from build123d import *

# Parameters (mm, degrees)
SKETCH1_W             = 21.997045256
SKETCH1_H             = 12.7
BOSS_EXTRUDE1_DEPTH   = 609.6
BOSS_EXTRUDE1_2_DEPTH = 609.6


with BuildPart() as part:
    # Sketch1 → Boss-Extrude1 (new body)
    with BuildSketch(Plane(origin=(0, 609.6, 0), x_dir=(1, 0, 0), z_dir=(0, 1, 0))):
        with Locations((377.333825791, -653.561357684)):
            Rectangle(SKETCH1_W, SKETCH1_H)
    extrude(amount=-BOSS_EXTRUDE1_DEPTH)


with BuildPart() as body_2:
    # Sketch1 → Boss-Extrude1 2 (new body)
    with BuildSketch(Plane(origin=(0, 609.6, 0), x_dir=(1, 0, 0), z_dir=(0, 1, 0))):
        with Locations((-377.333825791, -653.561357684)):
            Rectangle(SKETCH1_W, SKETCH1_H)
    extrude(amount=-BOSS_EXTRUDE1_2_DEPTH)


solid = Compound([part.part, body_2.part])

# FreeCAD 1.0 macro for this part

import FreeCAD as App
import Part
import Sketcher
Q = App.Units.Quantity


def add_polygon(sketch, points):
    """Adds a closed chain of lines whose ends are joined by coincident constraints."""
    first, n = sketch.GeometryCount, len(points)
    for a, b in zip(points, points[1:] + points[:1]):
        sketch.addGeometry(Part.LineSegment(App.Vector(*a, 0), App.Vector(*b, 0)), False)
    for i in range(n):
        sketch.addConstraint(Sketcher.Constraint("Coincident", first + i, 2, first + (i + 1) % n, 1))

doc = App.newDocument("Part")
body = doc.addObject("PartDesign::Body", "Body")

# Sketch on XZ plane
sketch1 = body.newObject("Sketcher::SketchObject", "Sketch")
sketch1.AttachmentSupport = (doc.getObject("XZ_Plane"), [""])
sketch1.MapMode = "FlatFace"
sketch1.AttachmentOffset = App.Placement(App.Vector(0, 0, -24 * 25.4), App.Rotation())
add_polygon(sketch1, [(366.335303, 647.211358), (366.335303, 659.911358), (388.332348, 659.911358), (388.332348, 647.211358)])  # lines 0-3
sketch1.addConstraint([
    Sketcher.Constraint("Vertical", 0),
    Sketcher.Constraint("Horizontal", 1),
    Sketcher.Constraint("Vertical", 2),
    Sketcher.Constraint("Horizontal", 3),
    Sketcher.Constraint("DistanceY", 0, 1, 0, 2, Q("0.5 in")),
    Sketcher.Constraint("DistanceX", 1, 1, 1, 2, Q("21.997045 mm")),
    Sketcher.Constraint("DistanceX", -1, 1, 1, 2, Q("388.332348 mm")),
    Sketcher.Constraint("DistanceY", -1, 1, 0, 2, Q("659.911358 mm")),
])
pad1 = body.newObject("PartDesign::Pad", "Pad")
pad1.Profile = sketch1
pad1.Length = Q("24 in")
body2 = doc.addObject("PartDesign::Body", "Body001")

# Sketch on XZ plane
sketch2 = body2.newObject("Sketcher::SketchObject", "Sketch001")
sketch2.AttachmentSupport = (doc.getObject("XZ_Plane001"), [""])
sketch2.MapMode = "FlatFace"
sketch2.AttachmentOffset = App.Placement(App.Vector(0, 0, -24 * 25.4), App.Rotation())
add_polygon(sketch2, [(-388.332348, 647.211358), (-388.332348, 659.911358), (-366.335303, 659.911358), (-366.335303, 647.211358)])  # lines 0-3
sketch2.addConstraint([
    Sketcher.Constraint("Vertical", 0),
    Sketcher.Constraint("Horizontal", 1),
    Sketcher.Constraint("Vertical", 2),
    Sketcher.Constraint("Horizontal", 3),
    Sketcher.Constraint("DistanceY", 0, 1, 0, 2, Q("0.5 in")),
    Sketcher.Constraint("DistanceX", 1, 1, 1, 2, Q("21.997045 mm")),
    Sketcher.Constraint("DistanceX", 0, 2, -1, 1, Q("388.332348 mm")),
    Sketcher.Constraint("DistanceY", -1, 1, 0, 2, Q("659.911358 mm")),
])
pad2 = body2.newObject("PartDesign::Pad", "Pad001")
pad2.Profile = sketch2
pad2.Length = Q("24 in")

doc.recompute()
